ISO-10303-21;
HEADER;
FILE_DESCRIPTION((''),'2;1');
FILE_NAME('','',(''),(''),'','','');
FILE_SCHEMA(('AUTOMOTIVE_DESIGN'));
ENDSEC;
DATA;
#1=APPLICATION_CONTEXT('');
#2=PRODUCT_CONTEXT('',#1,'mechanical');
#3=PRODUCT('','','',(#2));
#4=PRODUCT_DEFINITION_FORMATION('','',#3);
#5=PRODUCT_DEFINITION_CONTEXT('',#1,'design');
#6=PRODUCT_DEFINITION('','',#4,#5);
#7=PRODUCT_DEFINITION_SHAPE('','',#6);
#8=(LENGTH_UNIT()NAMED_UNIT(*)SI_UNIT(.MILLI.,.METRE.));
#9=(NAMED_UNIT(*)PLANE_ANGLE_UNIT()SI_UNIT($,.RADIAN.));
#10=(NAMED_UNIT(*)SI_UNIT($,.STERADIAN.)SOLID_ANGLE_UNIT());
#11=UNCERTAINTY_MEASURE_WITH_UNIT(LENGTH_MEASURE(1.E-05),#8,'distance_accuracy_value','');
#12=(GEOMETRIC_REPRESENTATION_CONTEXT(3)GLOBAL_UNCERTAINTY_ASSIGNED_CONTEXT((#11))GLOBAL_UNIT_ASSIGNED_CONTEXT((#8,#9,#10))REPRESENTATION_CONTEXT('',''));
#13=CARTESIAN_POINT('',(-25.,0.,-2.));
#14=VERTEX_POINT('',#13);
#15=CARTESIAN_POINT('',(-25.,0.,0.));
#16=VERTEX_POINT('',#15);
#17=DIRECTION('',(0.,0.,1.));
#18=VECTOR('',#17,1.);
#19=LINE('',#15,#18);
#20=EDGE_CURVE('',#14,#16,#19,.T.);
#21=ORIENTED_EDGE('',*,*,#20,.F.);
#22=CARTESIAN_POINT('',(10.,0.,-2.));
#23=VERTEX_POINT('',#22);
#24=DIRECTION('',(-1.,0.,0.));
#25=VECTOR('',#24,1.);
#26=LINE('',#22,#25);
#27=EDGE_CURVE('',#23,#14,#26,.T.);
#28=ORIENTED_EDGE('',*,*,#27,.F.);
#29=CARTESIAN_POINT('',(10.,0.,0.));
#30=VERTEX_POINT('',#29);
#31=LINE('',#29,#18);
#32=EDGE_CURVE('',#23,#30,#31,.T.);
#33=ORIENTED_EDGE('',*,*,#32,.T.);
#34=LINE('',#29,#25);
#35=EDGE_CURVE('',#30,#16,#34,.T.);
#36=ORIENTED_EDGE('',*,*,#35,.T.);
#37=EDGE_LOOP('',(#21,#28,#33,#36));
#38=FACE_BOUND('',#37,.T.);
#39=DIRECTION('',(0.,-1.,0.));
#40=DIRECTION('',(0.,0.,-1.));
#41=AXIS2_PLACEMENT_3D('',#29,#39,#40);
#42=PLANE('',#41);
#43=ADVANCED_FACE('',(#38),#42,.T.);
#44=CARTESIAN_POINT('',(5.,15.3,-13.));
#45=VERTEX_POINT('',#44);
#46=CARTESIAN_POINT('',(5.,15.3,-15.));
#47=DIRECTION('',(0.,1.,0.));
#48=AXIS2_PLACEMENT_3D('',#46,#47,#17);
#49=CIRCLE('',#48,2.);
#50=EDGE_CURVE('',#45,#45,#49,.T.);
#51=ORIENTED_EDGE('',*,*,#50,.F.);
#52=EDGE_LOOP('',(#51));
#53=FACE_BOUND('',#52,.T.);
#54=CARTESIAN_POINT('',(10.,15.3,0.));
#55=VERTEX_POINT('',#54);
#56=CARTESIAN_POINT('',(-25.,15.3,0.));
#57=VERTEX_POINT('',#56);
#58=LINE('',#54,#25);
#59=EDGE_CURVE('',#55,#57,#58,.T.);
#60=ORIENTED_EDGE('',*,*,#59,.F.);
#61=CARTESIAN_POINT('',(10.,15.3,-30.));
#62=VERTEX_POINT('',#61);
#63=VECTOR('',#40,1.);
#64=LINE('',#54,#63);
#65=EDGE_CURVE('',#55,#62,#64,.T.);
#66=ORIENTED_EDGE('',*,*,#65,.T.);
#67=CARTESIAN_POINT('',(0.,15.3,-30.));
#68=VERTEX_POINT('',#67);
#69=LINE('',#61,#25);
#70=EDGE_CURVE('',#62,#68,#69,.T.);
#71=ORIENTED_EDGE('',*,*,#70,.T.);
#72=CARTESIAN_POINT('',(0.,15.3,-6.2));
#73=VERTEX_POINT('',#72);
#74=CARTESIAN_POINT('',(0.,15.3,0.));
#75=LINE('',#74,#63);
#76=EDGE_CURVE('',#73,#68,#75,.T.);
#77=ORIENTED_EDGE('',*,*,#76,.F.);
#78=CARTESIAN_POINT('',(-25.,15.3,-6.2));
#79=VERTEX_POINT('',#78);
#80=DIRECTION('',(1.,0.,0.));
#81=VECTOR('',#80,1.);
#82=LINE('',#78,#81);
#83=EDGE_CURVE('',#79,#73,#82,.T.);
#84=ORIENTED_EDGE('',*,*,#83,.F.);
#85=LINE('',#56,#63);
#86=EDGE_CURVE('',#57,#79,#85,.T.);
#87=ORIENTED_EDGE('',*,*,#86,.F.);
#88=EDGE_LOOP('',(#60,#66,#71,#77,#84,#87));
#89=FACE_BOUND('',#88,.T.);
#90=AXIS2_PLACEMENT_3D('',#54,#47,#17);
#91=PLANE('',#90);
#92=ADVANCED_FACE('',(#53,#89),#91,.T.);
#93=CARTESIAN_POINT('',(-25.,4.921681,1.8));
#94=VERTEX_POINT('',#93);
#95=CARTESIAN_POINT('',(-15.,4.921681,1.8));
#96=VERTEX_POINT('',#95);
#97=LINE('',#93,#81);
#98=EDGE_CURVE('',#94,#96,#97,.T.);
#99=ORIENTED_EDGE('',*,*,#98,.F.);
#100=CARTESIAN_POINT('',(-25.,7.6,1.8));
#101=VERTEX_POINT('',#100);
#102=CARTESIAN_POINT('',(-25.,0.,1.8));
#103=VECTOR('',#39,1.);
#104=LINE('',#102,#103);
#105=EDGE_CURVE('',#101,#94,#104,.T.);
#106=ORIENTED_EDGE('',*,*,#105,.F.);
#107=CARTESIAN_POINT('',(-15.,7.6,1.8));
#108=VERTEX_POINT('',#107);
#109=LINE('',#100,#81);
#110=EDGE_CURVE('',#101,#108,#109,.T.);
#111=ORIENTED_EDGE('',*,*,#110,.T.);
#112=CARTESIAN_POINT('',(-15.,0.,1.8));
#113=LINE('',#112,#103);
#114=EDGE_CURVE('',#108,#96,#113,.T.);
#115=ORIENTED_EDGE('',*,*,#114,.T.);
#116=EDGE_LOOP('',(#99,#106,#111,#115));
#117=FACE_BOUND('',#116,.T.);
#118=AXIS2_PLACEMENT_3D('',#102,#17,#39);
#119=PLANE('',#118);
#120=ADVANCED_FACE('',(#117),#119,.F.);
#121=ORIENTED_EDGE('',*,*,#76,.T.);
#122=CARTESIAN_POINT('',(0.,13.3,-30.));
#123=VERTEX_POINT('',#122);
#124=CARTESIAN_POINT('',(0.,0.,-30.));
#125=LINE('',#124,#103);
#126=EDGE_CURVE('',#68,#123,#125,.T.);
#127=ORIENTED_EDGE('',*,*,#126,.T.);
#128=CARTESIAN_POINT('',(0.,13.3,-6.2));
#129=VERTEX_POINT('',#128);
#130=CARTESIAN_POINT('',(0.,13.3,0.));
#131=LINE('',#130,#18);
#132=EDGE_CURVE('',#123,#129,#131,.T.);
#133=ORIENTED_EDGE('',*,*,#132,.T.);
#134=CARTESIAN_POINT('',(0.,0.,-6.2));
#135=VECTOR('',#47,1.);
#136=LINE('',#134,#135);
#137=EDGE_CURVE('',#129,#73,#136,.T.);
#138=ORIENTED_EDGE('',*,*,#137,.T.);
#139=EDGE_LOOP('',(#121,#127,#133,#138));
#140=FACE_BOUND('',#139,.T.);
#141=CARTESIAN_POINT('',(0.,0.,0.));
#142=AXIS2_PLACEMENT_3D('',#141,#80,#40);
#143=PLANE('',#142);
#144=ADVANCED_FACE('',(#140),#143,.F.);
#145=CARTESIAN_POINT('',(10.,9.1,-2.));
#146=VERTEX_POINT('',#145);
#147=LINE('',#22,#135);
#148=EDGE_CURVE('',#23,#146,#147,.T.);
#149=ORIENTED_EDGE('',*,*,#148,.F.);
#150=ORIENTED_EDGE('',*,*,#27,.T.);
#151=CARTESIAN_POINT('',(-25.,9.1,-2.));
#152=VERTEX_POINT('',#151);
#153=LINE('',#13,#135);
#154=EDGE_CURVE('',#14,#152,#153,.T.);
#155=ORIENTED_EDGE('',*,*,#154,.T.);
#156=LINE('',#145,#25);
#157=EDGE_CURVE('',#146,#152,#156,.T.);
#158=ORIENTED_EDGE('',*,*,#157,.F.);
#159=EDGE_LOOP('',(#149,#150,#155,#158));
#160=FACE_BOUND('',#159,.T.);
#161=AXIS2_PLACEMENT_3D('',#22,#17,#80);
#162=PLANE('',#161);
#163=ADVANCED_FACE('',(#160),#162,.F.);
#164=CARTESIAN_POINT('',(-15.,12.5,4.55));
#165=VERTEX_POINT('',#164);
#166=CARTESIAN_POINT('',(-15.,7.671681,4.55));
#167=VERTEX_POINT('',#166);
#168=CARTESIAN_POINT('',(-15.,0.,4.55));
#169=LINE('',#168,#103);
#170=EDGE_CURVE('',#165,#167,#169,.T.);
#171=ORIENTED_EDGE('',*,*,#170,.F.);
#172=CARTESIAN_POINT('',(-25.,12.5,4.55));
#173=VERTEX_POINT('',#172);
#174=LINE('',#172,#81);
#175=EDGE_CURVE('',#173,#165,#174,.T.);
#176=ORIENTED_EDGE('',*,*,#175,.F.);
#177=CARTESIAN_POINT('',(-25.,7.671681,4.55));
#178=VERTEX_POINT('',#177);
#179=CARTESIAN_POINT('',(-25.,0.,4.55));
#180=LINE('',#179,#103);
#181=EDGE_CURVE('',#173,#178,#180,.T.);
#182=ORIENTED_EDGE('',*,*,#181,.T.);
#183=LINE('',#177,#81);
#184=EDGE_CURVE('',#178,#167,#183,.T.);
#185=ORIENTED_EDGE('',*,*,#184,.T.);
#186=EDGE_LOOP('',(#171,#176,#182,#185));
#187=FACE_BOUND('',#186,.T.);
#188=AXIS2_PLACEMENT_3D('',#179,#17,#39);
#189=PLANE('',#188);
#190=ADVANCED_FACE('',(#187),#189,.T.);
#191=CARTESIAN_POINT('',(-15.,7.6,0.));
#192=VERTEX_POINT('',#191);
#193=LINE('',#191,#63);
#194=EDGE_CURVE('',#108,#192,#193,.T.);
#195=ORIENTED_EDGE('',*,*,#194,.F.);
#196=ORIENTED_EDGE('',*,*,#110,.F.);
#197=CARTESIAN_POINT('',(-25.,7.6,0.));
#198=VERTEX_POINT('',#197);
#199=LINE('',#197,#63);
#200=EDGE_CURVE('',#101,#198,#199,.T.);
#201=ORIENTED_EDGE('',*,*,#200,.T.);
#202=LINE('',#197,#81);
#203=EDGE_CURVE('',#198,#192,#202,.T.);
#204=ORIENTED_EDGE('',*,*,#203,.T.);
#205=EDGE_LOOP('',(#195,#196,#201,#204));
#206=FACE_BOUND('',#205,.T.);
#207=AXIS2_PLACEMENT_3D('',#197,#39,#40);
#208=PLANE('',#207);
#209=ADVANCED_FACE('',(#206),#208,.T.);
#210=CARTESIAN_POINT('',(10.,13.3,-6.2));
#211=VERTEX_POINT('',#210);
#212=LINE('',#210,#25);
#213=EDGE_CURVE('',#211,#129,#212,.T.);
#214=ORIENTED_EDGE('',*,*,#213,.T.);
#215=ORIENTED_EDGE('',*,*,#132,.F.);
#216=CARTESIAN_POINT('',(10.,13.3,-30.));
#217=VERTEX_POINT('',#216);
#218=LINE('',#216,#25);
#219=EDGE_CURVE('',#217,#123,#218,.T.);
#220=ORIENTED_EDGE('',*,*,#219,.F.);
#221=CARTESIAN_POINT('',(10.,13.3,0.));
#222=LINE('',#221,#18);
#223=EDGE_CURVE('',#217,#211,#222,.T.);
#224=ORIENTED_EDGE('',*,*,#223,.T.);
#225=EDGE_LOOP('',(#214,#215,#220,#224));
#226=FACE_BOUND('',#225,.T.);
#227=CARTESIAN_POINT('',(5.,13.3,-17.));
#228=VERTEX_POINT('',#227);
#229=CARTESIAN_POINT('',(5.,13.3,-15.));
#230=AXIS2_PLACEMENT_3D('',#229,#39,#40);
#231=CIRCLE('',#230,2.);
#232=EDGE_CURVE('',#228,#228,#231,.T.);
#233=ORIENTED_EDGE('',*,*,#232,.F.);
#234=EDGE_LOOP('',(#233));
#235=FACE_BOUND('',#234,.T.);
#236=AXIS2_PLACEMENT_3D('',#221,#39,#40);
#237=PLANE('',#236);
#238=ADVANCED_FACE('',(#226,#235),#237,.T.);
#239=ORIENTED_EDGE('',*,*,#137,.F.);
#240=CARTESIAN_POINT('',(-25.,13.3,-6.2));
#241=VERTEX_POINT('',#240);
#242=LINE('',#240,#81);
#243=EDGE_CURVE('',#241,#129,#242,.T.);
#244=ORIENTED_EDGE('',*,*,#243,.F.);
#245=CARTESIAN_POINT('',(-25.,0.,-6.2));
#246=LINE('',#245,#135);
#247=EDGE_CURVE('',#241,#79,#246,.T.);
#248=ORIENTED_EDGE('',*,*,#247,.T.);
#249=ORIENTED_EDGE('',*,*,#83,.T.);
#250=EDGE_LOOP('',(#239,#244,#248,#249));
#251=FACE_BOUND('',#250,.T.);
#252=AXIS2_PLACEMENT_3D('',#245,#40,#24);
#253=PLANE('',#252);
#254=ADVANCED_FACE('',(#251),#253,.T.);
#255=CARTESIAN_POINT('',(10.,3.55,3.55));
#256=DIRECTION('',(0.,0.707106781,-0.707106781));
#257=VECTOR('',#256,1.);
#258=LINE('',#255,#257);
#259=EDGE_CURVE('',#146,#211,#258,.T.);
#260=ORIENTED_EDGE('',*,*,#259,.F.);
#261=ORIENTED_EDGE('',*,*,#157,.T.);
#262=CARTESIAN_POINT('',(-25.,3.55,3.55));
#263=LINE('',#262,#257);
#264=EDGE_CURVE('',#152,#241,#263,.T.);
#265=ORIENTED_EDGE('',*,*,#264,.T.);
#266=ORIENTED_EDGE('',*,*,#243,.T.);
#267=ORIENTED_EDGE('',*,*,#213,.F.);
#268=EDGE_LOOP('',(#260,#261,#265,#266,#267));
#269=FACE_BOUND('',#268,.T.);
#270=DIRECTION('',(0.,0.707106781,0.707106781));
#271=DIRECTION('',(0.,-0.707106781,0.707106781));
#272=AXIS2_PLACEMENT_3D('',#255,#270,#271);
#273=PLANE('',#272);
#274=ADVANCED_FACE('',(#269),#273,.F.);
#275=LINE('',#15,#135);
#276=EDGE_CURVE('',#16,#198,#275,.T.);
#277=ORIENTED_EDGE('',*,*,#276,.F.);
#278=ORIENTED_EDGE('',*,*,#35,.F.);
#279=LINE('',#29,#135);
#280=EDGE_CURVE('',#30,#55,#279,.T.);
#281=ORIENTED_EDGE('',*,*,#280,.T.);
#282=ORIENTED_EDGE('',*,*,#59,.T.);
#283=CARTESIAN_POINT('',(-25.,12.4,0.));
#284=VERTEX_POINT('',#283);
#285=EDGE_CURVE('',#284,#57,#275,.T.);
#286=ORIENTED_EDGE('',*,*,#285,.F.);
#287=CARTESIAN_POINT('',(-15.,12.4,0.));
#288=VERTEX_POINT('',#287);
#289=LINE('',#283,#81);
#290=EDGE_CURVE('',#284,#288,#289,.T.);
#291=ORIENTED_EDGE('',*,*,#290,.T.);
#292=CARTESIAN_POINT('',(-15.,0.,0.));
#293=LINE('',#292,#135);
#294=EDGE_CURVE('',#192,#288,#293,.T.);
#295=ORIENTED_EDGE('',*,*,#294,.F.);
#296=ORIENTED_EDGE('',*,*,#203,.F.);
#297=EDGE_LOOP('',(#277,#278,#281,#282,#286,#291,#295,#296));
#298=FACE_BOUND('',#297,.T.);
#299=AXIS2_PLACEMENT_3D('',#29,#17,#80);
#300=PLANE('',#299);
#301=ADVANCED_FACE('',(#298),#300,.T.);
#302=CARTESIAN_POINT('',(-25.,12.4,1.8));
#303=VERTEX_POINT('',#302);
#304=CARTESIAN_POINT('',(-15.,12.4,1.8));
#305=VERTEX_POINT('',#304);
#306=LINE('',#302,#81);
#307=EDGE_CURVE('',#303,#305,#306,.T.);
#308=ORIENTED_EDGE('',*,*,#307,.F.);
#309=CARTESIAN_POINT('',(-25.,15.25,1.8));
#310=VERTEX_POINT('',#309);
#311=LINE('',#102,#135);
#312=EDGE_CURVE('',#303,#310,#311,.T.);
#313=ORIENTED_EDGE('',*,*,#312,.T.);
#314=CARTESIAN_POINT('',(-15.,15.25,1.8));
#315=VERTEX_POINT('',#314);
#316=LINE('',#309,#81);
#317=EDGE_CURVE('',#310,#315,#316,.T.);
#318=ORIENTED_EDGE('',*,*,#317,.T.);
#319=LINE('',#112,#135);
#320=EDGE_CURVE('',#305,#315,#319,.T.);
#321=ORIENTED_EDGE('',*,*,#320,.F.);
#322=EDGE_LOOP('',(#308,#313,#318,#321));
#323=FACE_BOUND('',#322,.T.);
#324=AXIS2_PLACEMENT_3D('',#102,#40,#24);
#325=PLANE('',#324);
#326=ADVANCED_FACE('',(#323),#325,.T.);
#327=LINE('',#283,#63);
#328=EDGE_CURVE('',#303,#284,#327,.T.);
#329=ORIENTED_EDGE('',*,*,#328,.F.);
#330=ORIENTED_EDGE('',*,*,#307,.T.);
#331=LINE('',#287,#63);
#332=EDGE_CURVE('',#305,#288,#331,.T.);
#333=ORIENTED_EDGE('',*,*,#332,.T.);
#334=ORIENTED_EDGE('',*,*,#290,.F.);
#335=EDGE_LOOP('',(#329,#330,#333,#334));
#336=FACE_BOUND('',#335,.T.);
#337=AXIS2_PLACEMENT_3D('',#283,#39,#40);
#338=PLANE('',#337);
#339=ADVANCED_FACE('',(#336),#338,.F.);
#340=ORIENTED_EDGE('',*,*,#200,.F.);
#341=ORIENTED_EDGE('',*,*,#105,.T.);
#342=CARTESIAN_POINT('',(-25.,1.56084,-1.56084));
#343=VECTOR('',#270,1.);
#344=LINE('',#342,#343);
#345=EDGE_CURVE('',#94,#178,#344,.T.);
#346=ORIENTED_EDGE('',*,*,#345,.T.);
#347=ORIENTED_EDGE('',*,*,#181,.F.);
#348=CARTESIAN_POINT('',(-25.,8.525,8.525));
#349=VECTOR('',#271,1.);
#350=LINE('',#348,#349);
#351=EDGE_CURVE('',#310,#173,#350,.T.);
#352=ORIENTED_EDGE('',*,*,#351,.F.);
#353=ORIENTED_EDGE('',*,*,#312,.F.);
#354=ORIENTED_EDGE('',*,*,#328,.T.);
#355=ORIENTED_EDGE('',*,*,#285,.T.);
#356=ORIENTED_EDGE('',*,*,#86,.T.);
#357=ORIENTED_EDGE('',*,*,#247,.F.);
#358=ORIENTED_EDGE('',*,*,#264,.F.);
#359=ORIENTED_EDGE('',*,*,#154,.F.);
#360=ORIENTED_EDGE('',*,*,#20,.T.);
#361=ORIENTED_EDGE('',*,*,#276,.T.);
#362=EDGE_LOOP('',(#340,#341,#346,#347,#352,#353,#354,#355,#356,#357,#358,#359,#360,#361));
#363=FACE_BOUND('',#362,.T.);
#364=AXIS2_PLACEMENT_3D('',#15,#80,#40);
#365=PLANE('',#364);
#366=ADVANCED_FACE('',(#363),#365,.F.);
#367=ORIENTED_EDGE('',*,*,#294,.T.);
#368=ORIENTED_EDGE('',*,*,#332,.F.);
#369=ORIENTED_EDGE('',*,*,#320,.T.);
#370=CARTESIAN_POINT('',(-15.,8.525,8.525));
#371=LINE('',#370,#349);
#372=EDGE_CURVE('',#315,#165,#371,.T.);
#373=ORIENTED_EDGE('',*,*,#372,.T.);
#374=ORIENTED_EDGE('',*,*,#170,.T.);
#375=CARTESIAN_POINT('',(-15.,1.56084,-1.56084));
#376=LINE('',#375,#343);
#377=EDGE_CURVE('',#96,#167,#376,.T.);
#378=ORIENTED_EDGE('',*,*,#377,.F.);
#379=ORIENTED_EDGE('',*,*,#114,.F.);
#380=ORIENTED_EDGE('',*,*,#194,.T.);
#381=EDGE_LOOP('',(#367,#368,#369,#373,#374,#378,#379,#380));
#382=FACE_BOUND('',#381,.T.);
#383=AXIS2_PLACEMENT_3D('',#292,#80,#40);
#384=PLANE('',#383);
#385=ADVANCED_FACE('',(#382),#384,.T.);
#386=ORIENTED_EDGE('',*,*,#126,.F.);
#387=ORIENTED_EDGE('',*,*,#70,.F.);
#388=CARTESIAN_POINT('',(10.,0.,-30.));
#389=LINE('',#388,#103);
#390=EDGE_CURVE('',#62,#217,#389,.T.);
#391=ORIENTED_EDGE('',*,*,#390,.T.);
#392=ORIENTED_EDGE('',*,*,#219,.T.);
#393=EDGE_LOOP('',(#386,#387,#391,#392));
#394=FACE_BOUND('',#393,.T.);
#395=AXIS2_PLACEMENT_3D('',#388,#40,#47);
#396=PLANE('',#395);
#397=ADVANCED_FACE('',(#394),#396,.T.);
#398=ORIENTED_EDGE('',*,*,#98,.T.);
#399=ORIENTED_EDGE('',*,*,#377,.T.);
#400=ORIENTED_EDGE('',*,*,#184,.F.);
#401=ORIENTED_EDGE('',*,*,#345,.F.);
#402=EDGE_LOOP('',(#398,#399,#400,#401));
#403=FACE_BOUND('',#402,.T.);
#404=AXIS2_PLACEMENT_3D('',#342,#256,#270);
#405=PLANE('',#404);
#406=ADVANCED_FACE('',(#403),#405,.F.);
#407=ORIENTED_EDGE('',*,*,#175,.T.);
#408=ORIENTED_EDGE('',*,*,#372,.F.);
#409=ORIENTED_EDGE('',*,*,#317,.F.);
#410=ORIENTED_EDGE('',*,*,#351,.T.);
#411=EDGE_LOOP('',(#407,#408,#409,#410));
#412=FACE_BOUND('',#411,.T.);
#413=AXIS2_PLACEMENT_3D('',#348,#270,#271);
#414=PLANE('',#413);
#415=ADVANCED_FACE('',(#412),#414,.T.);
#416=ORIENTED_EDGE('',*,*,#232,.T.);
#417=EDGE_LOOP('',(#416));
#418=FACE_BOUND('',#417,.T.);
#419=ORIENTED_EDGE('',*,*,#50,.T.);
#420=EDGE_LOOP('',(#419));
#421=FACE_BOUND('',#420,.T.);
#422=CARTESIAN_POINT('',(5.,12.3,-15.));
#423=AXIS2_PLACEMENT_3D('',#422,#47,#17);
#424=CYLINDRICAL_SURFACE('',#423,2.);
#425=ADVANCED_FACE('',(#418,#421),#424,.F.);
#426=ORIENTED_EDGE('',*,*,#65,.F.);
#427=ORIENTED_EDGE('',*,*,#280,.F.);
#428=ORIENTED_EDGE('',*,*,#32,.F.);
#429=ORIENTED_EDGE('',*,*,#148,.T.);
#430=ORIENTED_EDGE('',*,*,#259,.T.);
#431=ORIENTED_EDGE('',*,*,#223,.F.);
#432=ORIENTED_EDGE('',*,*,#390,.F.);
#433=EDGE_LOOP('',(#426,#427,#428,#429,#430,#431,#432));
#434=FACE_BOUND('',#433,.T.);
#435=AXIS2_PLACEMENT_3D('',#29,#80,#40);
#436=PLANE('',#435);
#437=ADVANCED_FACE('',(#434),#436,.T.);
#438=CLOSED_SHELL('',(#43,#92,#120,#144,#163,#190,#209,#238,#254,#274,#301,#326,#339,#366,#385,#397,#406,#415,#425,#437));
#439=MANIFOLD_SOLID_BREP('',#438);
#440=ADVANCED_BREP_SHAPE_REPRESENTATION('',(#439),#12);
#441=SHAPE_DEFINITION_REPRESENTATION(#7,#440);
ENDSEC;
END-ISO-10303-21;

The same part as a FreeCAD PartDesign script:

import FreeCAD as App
import Part
import Sketcher
from FreeCAD import Vector
Q = App.Units.Quantity


def add_polygon(sketch, points):
    """Adds a closed chain of lines whose ends are joined by coincident constraints."""
    first, n = sketch.GeometryCount, len(points)
    for a, b in zip(points, points[1:] + points[:1]):
        sketch.addGeometry(Part.LineSegment(App.Vector(*a, 0), App.Vector(*b, 0)), False)
    for i in range(n):
        sketch.addConstraint(Sketcher.Constraint("Coincident", first + i, 2, first + (i + 1) % n, 1))

doc = App.newDocument("Part")
body = doc.addObject("PartDesign::Body", "Body")

sketch1 = body.newObject("Sketcher::SketchObject", "Sketch")
sketch1.AttachmentSupport = (doc.getObject("YZ_Plane"), [""])
sketch1.MapMode = "FlatFace"
add_polygon(sketch1, [(0, 0), (0, -2), (9.1, -2), (13.3, -6.2), (13.3, -30), (15.3, -30), (15.3, 0)])
sketch1.addConstraint(Sketcher.Constraint("Vertical", 0))
sketch1.addConstraint(Sketcher.Constraint("Horizontal", 1))
sketch1.addConstraint(Sketcher.Constraint("Vertical", 3))
sketch1.addConstraint(Sketcher.Constraint("Horizontal", 4))
sketch1.addConstraint(Sketcher.Constraint("Vertical", 5))
sketch1.addConstraint(Sketcher.Constraint("Horizontal", 6))
sketch1.addConstraint(Sketcher.Constraint("Coincident", 6, 2, -1, 1))
sketch1.addConstraint(Sketcher.Constraint("Equal", 4, 0))
sketch1.addConstraint(Sketcher.Constraint("DistanceX", 4, 1, 4, 2, Q("2 mm")))
sketch1.addConstraint(Sketcher.Constraint("DistanceY", 5, 1, 5, 2, Q("30 mm")))
sketch1.addConstraint(Sketcher.Constraint("Angle", 2, Q("-45 deg")))
sketch1.addConstraint(Sketcher.Constraint("DistanceX", 1, 1, 1, 2, Q("9.1 mm")))
sketch1.addConstraint(Sketcher.Constraint("DistanceX", 6, 2, 6, 1, Q("15.3 mm")))
pad1 = body.newObject("PartDesign::Pad", "Pad")
pad1.Profile = sketch1
pad1.Length = 10

sketch2 = body.newObject("Sketcher::SketchObject", "Sketch001")
sketch2.AttachmentSupport = (doc.getObject("XZ_Plane"), [""])
sketch2.MapMode = "FlatFace"
sketch2.AttachmentOffset = App.Placement(Vector(0, 0, -15.3), App.Rotation())
sketch2.addGeometry(Part.Circle(Vector(5, -15, 0), Vector(0, 0, 1), 2), False)
sketch2.addConstraint(Sketcher.Constraint("Diameter", 0, Q("4 mm")))
sketch2.addConstraint(Sketcher.Constraint("DistanceX", -1, 1, 0, 3, Q("5 mm")))
sketch2.addConstraint(Sketcher.Constraint("DistanceY", 0, 3, -1, 1, Q("15 mm")))
pocket1 = body.newObject("PartDesign::Pocket", "Pocket")
pocket1.Profile = sketch2
pocket1.Length = 3
pocket1.Reversed = True

sketch3 = body.newObject("Sketcher::SketchObject", "Sketch002")
sketch3.AttachmentSupport = (doc.getObject("YZ_Plane"), [""])
sketch3.MapMode = "FlatFace"
add_polygon(sketch3, [(7.6, 0), (0, 0), (0, -2), (9.1, -2), (13.3, -6.2), (15.3, -6.2), (15.3, 0), (12.4, 0), (12.4, 1.8), (15.2, 1.8), (12.5, 4.5), (7.7, 4.5), (4.9, 1.8), (7.6, 1.8)])
sketch3.addConstraint(Sketcher.Constraint("Horizontal", 0))
sketch3.addConstraint(Sketcher.Constraint("Vertical", 1))
sketch3.addConstraint(Sketcher.Constraint("Horizontal", 2))
sketch3.addConstraint(Sketcher.Constraint("Horizontal", 4))
sketch3.addConstraint(Sketcher.Constraint("Vertical", 5))
sketch3.addConstraint(Sketcher.Constraint("Horizontal", 6))
sketch3.addConstraint(Sketcher.Constraint("Vertical", 7))
sketch3.addConstraint(Sketcher.Constraint("Horizontal", 8))
sketch3.addConstraint(Sketcher.Constraint("Horizontal", 10))
sketch3.addConstraint(Sketcher.Constraint("Horizontal", 12))
sketch3.addConstraint(Sketcher.Constraint("Vertical", 13))
sketch3.addConstraint(Sketcher.Constraint("Coincident", 0, 2, -1, 1))
sketch3.addConstraint(Sketcher.Constraint("PointOnObject", 5, 2, -1))
sketch3.addConstraint(Sketcher.Constraint("Parallel", 3, 9))
sketch3.addConstraint(Sketcher.Constraint("Perpendicular", 9, 11))
sketch3.addConstraint(Sketcher.Constraint("Horizontal", 8, 2, 11, 2))
sketch3.addConstraint(Sketcher.Constraint("Equal", 4, 1))
sketch3.addConstraint(Sketcher.Constraint("Equal", 9, 11))
sketch3.addConstraint(Sketcher.Constraint("DistanceX", 4, 1, 4, 2, Q("2 mm")))
sketch3.addConstraint(Sketcher.Constraint("DistanceX", 0, 2, 0, 1, Q("7.6 mm")))
sketch3.addConstraint(Sketcher.Constraint("DistanceX", 2, 1, 2, 2, Q("9.1 mm")))
sketch3.addConstraint(Sketcher.Constraint("DistanceX", 6, 2, 6, 1, Q("2.9 mm")))
sketch3.addConstraint(Sketcher.Constraint("DistanceY", 5, 1, 5, 2, Q("6.2 mm")))
sketch3.addConstraint(Sketcher.Constraint("DistanceY", 7, 1, 7, 2, Q("1.8 mm")))
sketch3.addConstraint(Sketcher.Constraint("DistanceX", 8, 1, 8, 2, Q("2.85 mm")))
sketch3.addConstraint(Sketcher.Constraint("DistanceX", -1, 1, 9, 2, Q("12.5 mm")))
sketch3.addConstraint(Sketcher.Constraint("DistanceX", 10, 2, 10, 1, Q("4.828319 mm")))
pad2 = body.newObject("PartDesign::Pad", "Pad001")
pad2.Profile = sketch3
pad2.Length = 25
pad2.Reversed = True

sketch4 = body.newObject("Sketcher::SketchObject", "Sketch003")
sketch4.AttachmentSupport = (doc.getObject("YZ_Plane"), [""])
sketch4.MapMode = "FlatFace"
add_polygon(sketch4, [(7.6, 1.8), (7.6, 0), (12.4, 0), (12.4, 1.8), (15.2, 1.8), (12.5, 4.5), (7.7, 4.5), (4.9, 1.8)])
sketch4.addConstraint(Sketcher.Constraint("Vertical", 0))
sketch4.addConstraint(Sketcher.Constraint("Horizontal", 1))
sketch4.addConstraint(Sketcher.Constraint("Vertical", 2))
sketch4.addConstraint(Sketcher.Constraint("Horizontal", 3))
sketch4.addConstraint(Sketcher.Constraint("Horizontal", 5))
sketch4.addConstraint(Sketcher.Constraint("Horizontal", 7))
sketch4.addConstraint(Sketcher.Constraint("PointOnObject", 0, 2, -1))
sketch4.addConstraint(Sketcher.Constraint("Perpendicular", 4, 6))
sketch4.addConstraint(Sketcher.Constraint("Horizontal", 3, 2, 6, 2))
sketch4.addConstraint(Sketcher.Constraint("Equal", 4, 6))
sketch4.addConstraint(Sketcher.Constraint("DistanceX", 1, 1, 1, 2, Q("4.8 mm")))
sketch4.addConstraint(Sketcher.Constraint("DistanceY", 0, 2, 0, 1, Q("1.8 mm")))
sketch4.addConstraint(Sketcher.Constraint("DistanceX", 3, 1, 3, 2, Q("2.85 mm")))
sketch4.addConstraint(Sketcher.Constraint("DistanceX", -1, 1, 0, 2, Q("7.6 mm")))
sketch4.addConstraint(Sketcher.Constraint("DistanceX", -1, 1, 4, 2, Q("12.5 mm")))
sketch4.addConstraint(Sketcher.Constraint("DistanceX", 5, 2, 5, 1, Q("4.828319 mm")))
pocket2 = body.newObject("PartDesign::Pocket", "Pocket001")
pocket2.Profile = sketch4
pocket2.Length = 15

doc.recompute()
